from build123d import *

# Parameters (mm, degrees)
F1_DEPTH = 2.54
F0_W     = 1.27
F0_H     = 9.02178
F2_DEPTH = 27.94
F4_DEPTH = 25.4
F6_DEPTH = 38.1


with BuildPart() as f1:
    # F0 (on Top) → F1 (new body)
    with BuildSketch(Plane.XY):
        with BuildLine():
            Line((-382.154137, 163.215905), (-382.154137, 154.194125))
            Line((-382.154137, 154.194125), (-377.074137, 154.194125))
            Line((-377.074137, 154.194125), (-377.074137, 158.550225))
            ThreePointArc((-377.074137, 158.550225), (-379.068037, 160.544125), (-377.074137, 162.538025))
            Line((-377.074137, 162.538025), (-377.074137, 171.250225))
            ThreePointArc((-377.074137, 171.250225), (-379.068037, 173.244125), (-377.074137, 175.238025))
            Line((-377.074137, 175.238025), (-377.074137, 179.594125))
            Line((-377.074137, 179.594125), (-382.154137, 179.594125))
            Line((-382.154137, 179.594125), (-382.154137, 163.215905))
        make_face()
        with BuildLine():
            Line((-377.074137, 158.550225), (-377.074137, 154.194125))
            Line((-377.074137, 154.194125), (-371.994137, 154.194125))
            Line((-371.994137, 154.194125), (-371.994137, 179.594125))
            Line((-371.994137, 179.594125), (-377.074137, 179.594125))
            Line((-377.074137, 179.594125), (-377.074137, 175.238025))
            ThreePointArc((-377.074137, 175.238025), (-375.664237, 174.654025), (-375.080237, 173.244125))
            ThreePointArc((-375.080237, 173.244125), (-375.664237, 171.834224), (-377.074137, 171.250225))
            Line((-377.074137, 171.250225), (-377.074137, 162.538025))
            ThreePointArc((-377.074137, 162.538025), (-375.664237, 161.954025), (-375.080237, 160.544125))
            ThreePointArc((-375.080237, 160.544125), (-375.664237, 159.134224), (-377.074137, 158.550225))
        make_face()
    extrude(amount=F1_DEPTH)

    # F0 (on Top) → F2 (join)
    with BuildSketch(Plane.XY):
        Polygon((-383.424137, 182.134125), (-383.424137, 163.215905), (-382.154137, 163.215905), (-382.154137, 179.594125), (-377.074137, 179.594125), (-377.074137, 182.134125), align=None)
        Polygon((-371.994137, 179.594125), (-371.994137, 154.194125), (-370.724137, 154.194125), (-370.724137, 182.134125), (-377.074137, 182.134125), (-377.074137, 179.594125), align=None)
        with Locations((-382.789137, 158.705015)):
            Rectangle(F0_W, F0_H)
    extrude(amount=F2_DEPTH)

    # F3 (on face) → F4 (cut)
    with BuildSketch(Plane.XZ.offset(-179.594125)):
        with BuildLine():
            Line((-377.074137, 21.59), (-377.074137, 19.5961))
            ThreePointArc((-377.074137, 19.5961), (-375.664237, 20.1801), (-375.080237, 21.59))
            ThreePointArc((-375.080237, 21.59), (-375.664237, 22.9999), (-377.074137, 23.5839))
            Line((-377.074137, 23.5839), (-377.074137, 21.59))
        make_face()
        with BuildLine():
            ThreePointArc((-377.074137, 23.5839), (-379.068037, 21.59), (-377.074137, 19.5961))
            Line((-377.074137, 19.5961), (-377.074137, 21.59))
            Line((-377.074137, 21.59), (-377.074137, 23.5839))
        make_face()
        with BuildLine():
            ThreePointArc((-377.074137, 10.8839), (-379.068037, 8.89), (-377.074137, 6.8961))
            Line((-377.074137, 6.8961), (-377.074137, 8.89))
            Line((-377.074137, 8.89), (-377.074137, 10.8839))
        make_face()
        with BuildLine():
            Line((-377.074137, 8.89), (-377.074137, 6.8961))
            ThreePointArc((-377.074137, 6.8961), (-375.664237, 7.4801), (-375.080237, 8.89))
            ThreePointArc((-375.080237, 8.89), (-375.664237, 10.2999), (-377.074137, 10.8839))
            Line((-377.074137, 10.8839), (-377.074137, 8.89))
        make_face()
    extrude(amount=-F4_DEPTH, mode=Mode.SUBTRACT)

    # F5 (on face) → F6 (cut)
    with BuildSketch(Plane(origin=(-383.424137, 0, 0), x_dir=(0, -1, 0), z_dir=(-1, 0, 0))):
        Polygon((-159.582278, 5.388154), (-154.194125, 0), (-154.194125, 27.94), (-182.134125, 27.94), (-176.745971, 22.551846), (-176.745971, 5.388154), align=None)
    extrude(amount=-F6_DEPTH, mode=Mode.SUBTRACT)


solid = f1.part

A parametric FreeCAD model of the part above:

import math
import FreeCAD as App
import Part
import Sketcher
from FreeCAD import Vector
Q = App.Units.Quantity

doc = App.newDocument("Part")
body = doc.addObject("PartDesign::Body", "Body")

sketch1 = body.newObject("Sketcher::SketchObject", "Sketch")
sketch1.AttachmentSupport = (doc.getObject("XY_Plane"), [""])
sketch1.MapMode = "FlatFace"
sketch1.addGeometry(Part.LineSegment(Vector(-382.2, 154.2, 0), Vector(-372, 154.2, 0)), False)
sketch1.addGeometry(Part.LineSegment(Vector(-372, 154.2, 0), Vector(-372, 179.6, 0)), False)
sketch1.addGeometry(Part.LineSegment(Vector(-372, 179.6, 0), Vector(-382.2, 179.6, 0)), False)
sketch1.addGeometry(Part.LineSegment(Vector(-382.2, 179.6, 0), Vector(-382.2, 154.2, 0)), False)
sketch1.addGeometry(Part.ArcOfCircle(Part.Circle(Vector(-377.1, 160.5, 0), Vector(0, 0, 1), 2), math.radians(90), math.radians(270)), False)
sketch1.addGeometry(Part.ArcOfCircle(Part.Circle(Vector(-377.1, 160.5, 0), Vector(0, 0, 1), 2), math.radians(0), math.radians(90)), False)
sketch1.addGeometry(Part.ArcOfCircle(Part.Circle(Vector(-377.1, 160.5, 0), Vector(0, 0, 1), 2), math.radians(-90), math.radians(0)), False)
sketch1.addGeometry(Part.ArcOfCircle(Part.Circle(Vector(-377.1, 173.2, 0), Vector(0, 0, 1), 2), math.radians(90), math.radians(270)), False)
sketch1.addGeometry(Part.ArcOfCircle(Part.Circle(Vector(-377.1, 173.2, 0), Vector(0, 0, 1), 2), math.radians(0), math.radians(90)), False)
sketch1.addGeometry(Part.ArcOfCircle(Part.Circle(Vector(-377.1, 173.2, 0), Vector(0, 0, 1), 2), math.radians(-90), math.radians(0)), False)
sketch1.addConstraint(Sketcher.Constraint("Coincident", 0, 2, 1, 1))
sketch1.addConstraint(Sketcher.Constraint("Coincident", 1, 2, 2, 1))
sketch1.addConstraint(Sketcher.Constraint("Coincident", 2, 2, 3, 1))
sketch1.addConstraint(Sketcher.Constraint("Coincident", 3, 2, 0, 1))
sketch1.addConstraint(Sketcher.Constraint("Tangent", 4, 1, 5, 2))
sketch1.addConstraint(Sketcher.Constraint("Tangent", 5, 1, 6, 2))
sketch1.addConstraint(Sketcher.Constraint("Tangent", 6, 1, 4, 2))
sketch1.addConstraint(Sketcher.Constraint("Tangent", 7, 1, 8, 2))
sketch1.addConstraint(Sketcher.Constraint("Tangent", 8, 1, 9, 2))
sketch1.addConstraint(Sketcher.Constraint("Tangent", 9, 1, 7, 2))
sketch1.addConstraint(Sketcher.Constraint("Horizontal", 0))
sketch1.addConstraint(Sketcher.Constraint("Vertical", 1))
sketch1.addConstraint(Sketcher.Constraint("Horizontal", 2))
sketch1.addConstraint(Sketcher.Constraint("Vertical", 3))
sketch1.addConstraint(Sketcher.Constraint("Equal", 6, 7))
sketch1.addConstraint(Sketcher.Constraint("Horizontal", 6, 3, 5, 1))
sketch1.addConstraint(Sketcher.Constraint("Horizontal", 9, 3, 8, 1))
sketch1.addConstraint(Sketcher.Constraint("Vertical", 6, 3, 7, 3))
sketch1.addConstraint(Sketcher.Constraint("Vertical", 9, 3, 4, 1))
sketch1.addConstraint(Sketcher.Constraint("Vertical", 4, 1, 6, 1))
sketch1.addConstraint(Sketcher.Constraint("Vertical", 6, 1, 7, 1))
sketch1.addConstraint(Sketcher.Constraint("Vertical", 7, 1, 9, 1))
sketch1.addConstraint(Sketcher.Constraint("DistanceY", 1, 1, 1, 2, Q("1 in")))
sketch1.addConstraint(Sketcher.Constraint("DistanceX", 0, 1, 0, 2, Q("0.4 in")))
sketch1.addConstraint(Sketcher.Constraint("Radius", 4, Q("0.0785 in")))
sketch1.addConstraint(Sketcher.Constraint("DistanceY", 4, 3, 7, 3, Q("0.5 in")))
sketch1.addConstraint(Sketcher.Constraint("DistanceX", 6, 3, 0, 2, Q("0.2 in")))
sketch1.addConstraint(Sketcher.Constraint("DistanceY", 0, 2, 6, 3, Q("0.25 in")))
sketch1.addConstraint(Sketcher.Constraint("DistanceX", 4, 3, -1, 1, Q("377.074137 mm")))
sketch1.addConstraint(Sketcher.Constraint("DistanceY", -1, 1, 4, 3, Q("160.544125 mm")))
pad1 = body.newObject("PartDesign::Pad", "Pad")
pad1.Profile = sketch1
pad1.Length = Q("0.1 in")

sketch2 = body.newObject("Sketcher::SketchObject", "Sketch001")
sketch2.AttachmentSupport = (doc.getObject("XY_Plane"), [""])
sketch2.MapMode = "FlatFace"
sketch2.addGeometry(Part.LineSegment(Vector(-383.4, 182.1, 0), Vector(-383.4, 154.2, 0)), False)
sketch2.addGeometry(Part.LineSegment(Vector(-383.4, 154.2, 0), Vector(-382.2, 154.2, 0)), False)
sketch2.addGeometry(Part.LineSegment(Vector(-382.2, 154.2, 0), Vector(-382.2, 179.6, 0)), False)
sketch2.addGeometry(Part.LineSegment(Vector(-382.2, 179.6, 0), Vector(-372, 179.6, 0)), False)
sketch2.addGeometry(Part.LineSegment(Vector(-372, 179.6, 0), Vector(-372, 154.2, 0)), False)
sketch2.addGeometry(Part.LineSegment(Vector(-372, 154.2, 0), Vector(-370.7, 154.2, 0)), False)
sketch2.addGeometry(Part.LineSegment(Vector(-370.7, 154.2, 0), Vector(-370.7, 182.1, 0)), False)
sketch2.addGeometry(Part.LineSegment(Vector(-370.7, 182.1, 0), Vector(-383.4, 182.1, 0)), False)
sketch2.addConstraint(Sketcher.Constraint("Coincident", 0, 2, 1, 1))
sketch2.addConstraint(Sketcher.Constraint("Coincident", 1, 2, 2, 1))
sketch2.addConstraint(Sketcher.Constraint("Coincident", 2, 2, 3, 1))
sketch2.addConstraint(Sketcher.Constraint("Coincident", 3, 2, 4, 1))
sketch2.addConstraint(Sketcher.Constraint("Coincident", 4, 2, 5, 1))
sketch2.addConstraint(Sketcher.Constraint("Coincident", 5, 2, 6, 1))
sketch2.addConstraint(Sketcher.Constraint("Coincident", 6, 2, 7, 1))
sketch2.addConstraint(Sketcher.Constraint("Coincident", 7, 2, 0, 1))
sketch2.addConstraint(Sketcher.Constraint("Vertical", 0))
sketch2.addConstraint(Sketcher.Constraint("Horizontal", 1))
sketch2.addConstraint(Sketcher.Constraint("Vertical", 2))
sketch2.addConstraint(Sketcher.Constraint("Horizontal", 3))
sketch2.addConstraint(Sketcher.Constraint("Vertical", 4))
sketch2.addConstraint(Sketcher.Constraint("Horizontal", 5))
sketch2.addConstraint(Sketcher.Constraint("Vertical", 6))
sketch2.addConstraint(Sketcher.Constraint("Horizontal", 7))
sketch2.addConstraint(Sketcher.Constraint("Horizontal", 1, 2, 4, 2))
sketch2.addConstraint(Sketcher.Constraint("Equal", 1, 5))
sketch2.addConstraint(Sketcher.Constraint("DistanceY", 2, 1, 2, 2, Q("1 in")))
sketch2.addConstraint(Sketcher.Constraint("DistanceX", 3, 1, 3, 2, Q("0.4 in")))
sketch2.addConstraint(Sketcher.Constraint("DistanceX", 7, 2, 7, 1, Q("0.5 in")))
sketch2.addConstraint(Sketcher.Constraint("DistanceY", 0, 2, 0, 1, Q("1.1 in")))
sketch2.addConstraint(Sketcher.Constraint("DistanceX", 0, 2, -1, 1, Q("383.424137 mm")))
sketch2.addConstraint(Sketcher.Constraint("DistanceY", -1, 1, 0, 2, Q("154.194125 mm")))
pad2 = body.newObject("PartDesign::Pad", "Pad001")
pad2.Profile = sketch2
pad2.Length = Q("1.1 in")

sketch3 = body.newObject("Sketcher::SketchObject", "Sketch002")
sketch3.AttachmentSupport = (doc.getObject("XZ_Plane"), [""])
sketch3.MapMode = "FlatFace"
sketch3.AttachmentOffset = App.Placement(Vector(0, 0, -179.594125), App.Rotation())
sketch3.addGeometry(Part.ArcOfCircle(Part.Circle(Vector(-377.1, 21.6, 0), Vector(0, 0, 1), 2), math.radians(-90), math.radians(0)), False)
sketch3.addGeometry(Part.ArcOfCircle(Part.Circle(Vector(-377.1, 21.6, 0), Vector(0, 0, 1), 2), math.radians(0), math.radians(90)), False)
sketch3.addGeometry(Part.ArcOfCircle(Part.Circle(Vector(-377.1, 21.6, 0), Vector(0, 0, 1), 2), math.radians(90), math.radians(270)), False)
sketch3.addGeometry(Part.ArcOfCircle(Part.Circle(Vector(-377.1, 8.9, 0), Vector(0, 0, 1), 2), math.radians(90), math.radians(270)), False)
sketch3.addGeometry(Part.ArcOfCircle(Part.Circle(Vector(-377.1, 8.9, 0), Vector(0, 0, 1), 2), math.radians(-90), math.radians(0)), False)
sketch3.addGeometry(Part.ArcOfCircle(Part.Circle(Vector(-377.1, 8.9, 0), Vector(0, 0, 1), 2), math.radians(0), math.radians(90)), False)
sketch3.addConstraint(Sketcher.Constraint("Tangent", 0, 2, 1, 1))
sketch3.addConstraint(Sketcher.Constraint("Tangent", 1, 2, 2, 1))
sketch3.addConstraint(Sketcher.Constraint("Tangent", 2, 2, 0, 1))
sketch3.addConstraint(Sketcher.Constraint("Tangent", 3, 2, 4, 1))
sketch3.addConstraint(Sketcher.Constraint("Tangent", 4, 2, 5, 1))
sketch3.addConstraint(Sketcher.Constraint("Tangent", 5, 2, 3, 1))
sketch3.addConstraint(Sketcher.Constraint("Equal", 2, 3))
sketch3.addConstraint(Sketcher.Constraint("Horizontal", 2, 3, 0, 2))
sketch3.addConstraint(Sketcher.Constraint("Horizontal", 5, 3, 4, 2))
sketch3.addConstraint(Sketcher.Constraint("Vertical", 2, 3, 3, 3))
sketch3.addConstraint(Sketcher.Constraint("Vertical", 5, 3, 1, 2))
sketch3.addConstraint(Sketcher.Constraint("Vertical", 1, 2, 2, 2))
sketch3.addConstraint(Sketcher.Constraint("Vertical", 2, 2, 3, 2))
sketch3.addConstraint(Sketcher.Constraint("Vertical", 3, 2, 5, 2))
sketch3.addConstraint(Sketcher.Constraint("Radius", 0, Q("0.0785 in")))
sketch3.addConstraint(Sketcher.Constraint("DistanceY", 3, 3, 1, 3, Q("0.5 in")))
sketch3.addConstraint(Sketcher.Constraint("DistanceY", -1, 1, 0, 3, Q("0.85 in")))
sketch3.addConstraint(Sketcher.Constraint("DistanceX", 0, 3, -1, 1, Q("377.074138 mm")))
pocket1 = body.newObject("PartDesign::Pocket", "Pocket")
pocket1.Profile = sketch3
pocket1.Length = Q("1 in")

sketch4 = body.newObject("Sketcher::SketchObject", "Sketch003")
sketch4.AttachmentSupport = (doc.getObject("YZ_Plane"), [""])
sketch4.MapMode = "FlatFace"
sketch4.AttachmentOffset = App.Placement(Vector(0, 0, -383.424137), App.Rotation())
sketch4.addGeometry(Part.LineSegment(Vector(160, 5, 0), Vector(154, 0, 0)), False)
sketch4.addGeometry(Part.LineSegment(Vector(154, 0, 0), Vector(154, 28, 0)), False)
sketch4.addGeometry(Part.LineSegment(Vector(154, 28, 0), Vector(182, 28, 0)), False)
sketch4.addGeometry(Part.LineSegment(Vector(182, 28, 0), Vector(177, 23, 0)), False)
sketch4.addGeometry(Part.LineSegment(Vector(177, 23, 0), Vector(177, 5, 0)), False)
sketch4.addGeometry(Part.LineSegment(Vector(177, 5, 0), Vector(160, 5, 0)), False)
sketch4.addConstraint(Sketcher.Constraint("Coincident", 0, 2, 1, 1))
sketch4.addConstraint(Sketcher.Constraint("Coincident", 1, 2, 2, 1))
sketch4.addConstraint(Sketcher.Constraint("Coincident", 2, 2, 3, 1))
sketch4.addConstraint(Sketcher.Constraint("Coincident", 3, 2, 4, 1))
sketch4.addConstraint(Sketcher.Constraint("Coincident", 4, 2, 5, 1))
sketch4.addConstraint(Sketcher.Constraint("Coincident", 5, 2, 0, 1))
sketch4.addConstraint(Sketcher.Constraint("Vertical", 1))
sketch4.addConstraint(Sketcher.Constraint("Horizontal", 2))
sketch4.addConstraint(Sketcher.Constraint("Vertical", 4))
sketch4.addConstraint(Sketcher.Constraint("Horizontal", 5))
sketch4.addConstraint(Sketcher.Constraint("PointOnObject", 0, 2, -1))
sketch4.addConstraint(Sketcher.Constraint("Parallel", 0, 3))
sketch4.addConstraint(Sketcher.Constraint("Equal", 2, 1))
sketch4.addConstraint(Sketcher.Constraint("Equal", 5, 4))
sketch4.addConstraint(Sketcher.Constraint("Equal", 0, 3))
sketch4.addConstraint(Sketcher.Constraint("DistanceX", 2, 1, 2, 2, Q("1.1 in")))
sketch4.addConstraint(Sketcher.Constraint("Distance", 0, Q("0.3 in")))
sketch4.addConstraint(Sketcher.Constraint("DistanceX", -1, 1, 3, 2, Q("176.745971 mm")))
pocket2 = body.newObject("PartDesign::Pocket", "Pocket001")
pocket2.Profile = sketch4
pocket2.Length = Q("1.5 in")
pocket2.Reversed = True

doc.recompute()
